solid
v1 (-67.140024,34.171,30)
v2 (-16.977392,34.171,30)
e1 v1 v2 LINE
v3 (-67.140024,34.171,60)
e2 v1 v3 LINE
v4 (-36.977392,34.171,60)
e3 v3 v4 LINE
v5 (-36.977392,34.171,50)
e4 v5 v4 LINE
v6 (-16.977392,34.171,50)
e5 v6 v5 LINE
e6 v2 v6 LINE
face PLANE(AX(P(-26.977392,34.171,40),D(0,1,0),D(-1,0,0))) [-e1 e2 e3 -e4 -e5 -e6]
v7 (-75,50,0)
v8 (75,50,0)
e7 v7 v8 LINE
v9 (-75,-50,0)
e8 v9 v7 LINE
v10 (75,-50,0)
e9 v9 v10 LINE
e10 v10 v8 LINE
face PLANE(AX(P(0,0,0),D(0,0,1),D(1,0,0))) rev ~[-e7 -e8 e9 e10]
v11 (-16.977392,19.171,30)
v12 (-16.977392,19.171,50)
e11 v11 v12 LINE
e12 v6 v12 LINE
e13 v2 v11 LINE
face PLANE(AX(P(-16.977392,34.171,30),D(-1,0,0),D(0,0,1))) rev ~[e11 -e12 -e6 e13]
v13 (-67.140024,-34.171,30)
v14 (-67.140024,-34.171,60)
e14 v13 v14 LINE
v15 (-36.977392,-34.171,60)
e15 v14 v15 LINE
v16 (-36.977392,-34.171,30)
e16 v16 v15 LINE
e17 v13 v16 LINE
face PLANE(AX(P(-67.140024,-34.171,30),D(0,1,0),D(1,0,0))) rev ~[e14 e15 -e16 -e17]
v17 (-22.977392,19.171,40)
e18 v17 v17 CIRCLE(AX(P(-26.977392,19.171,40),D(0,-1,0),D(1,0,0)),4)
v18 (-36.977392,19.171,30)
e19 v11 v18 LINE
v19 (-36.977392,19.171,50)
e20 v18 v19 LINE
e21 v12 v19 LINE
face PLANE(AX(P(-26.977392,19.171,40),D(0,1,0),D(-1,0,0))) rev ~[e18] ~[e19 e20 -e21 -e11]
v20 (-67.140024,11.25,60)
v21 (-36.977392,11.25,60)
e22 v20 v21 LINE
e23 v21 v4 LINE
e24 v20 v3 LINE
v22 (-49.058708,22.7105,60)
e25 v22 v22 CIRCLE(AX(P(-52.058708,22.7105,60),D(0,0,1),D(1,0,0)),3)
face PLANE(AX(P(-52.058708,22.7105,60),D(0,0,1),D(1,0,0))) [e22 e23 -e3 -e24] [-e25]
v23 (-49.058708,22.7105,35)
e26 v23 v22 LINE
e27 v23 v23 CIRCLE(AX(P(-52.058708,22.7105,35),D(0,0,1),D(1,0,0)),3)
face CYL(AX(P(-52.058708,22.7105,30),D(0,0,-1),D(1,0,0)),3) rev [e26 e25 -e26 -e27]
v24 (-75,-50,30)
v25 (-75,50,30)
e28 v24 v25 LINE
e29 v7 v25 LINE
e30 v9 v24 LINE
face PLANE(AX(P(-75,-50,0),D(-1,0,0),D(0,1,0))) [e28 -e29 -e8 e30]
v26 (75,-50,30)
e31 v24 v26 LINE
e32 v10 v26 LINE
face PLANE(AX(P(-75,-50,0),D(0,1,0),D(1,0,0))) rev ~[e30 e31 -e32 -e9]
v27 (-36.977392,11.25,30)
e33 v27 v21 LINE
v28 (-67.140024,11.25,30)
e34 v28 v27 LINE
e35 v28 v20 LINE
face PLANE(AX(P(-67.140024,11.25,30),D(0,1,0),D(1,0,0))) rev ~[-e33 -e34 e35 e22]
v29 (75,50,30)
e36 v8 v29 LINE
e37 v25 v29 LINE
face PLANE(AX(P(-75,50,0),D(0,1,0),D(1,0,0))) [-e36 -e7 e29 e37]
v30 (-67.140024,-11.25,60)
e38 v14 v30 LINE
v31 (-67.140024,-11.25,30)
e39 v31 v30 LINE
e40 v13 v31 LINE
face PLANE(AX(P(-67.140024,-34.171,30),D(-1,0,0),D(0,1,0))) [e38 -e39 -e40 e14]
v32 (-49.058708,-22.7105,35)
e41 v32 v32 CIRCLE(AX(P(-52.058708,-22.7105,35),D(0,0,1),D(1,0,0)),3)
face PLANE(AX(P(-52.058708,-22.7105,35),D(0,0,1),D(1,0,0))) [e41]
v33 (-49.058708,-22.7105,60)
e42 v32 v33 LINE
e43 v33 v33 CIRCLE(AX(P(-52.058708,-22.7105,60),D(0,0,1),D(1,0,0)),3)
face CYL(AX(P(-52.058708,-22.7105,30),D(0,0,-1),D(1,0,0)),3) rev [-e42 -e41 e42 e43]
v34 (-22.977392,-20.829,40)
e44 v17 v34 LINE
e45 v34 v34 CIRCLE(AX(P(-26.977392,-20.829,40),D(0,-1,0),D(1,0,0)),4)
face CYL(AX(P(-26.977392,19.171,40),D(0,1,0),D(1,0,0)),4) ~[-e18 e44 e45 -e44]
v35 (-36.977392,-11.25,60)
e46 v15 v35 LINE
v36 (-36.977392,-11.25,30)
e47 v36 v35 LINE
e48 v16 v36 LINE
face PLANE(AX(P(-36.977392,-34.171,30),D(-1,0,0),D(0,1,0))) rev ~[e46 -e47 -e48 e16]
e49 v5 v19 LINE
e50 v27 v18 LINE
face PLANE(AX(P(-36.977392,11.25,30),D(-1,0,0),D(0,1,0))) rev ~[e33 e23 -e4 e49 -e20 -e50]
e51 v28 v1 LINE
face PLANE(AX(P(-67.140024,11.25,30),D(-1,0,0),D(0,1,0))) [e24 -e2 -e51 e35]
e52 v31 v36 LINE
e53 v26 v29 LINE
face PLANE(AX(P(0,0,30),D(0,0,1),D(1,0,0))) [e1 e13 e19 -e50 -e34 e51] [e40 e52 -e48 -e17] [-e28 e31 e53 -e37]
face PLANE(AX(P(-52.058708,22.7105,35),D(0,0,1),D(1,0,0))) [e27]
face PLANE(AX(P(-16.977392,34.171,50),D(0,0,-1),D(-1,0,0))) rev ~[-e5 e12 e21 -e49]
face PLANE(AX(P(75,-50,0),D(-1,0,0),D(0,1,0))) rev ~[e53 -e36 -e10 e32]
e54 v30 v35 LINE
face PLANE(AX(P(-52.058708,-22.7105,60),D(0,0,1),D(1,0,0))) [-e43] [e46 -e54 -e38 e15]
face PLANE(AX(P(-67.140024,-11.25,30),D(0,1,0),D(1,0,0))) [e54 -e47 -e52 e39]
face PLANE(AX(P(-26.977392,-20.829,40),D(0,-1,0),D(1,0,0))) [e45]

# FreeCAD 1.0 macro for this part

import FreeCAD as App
import Part
import Sketcher

V = App.Vector

doc = App.newDocument("Part")
body = doc.addObject("PartDesign::Body", "Body")

sketch1 = body.newObject("Sketcher::SketchObject", "Sketch")
sketch1.AttachmentSupport = (doc.getObject("XY_Plane"), [""])
sketch1.MapMode = "FlatFace"
sketch1.addGeometry([
    Part.LineSegment(V(-75, 50, 0), V(-75, -50, 0)),
    Part.LineSegment(V(-75, -50, 0), V(75, -50, 0)),
    Part.LineSegment(V(75, -50, 0), V(75, 50, 0)),
    Part.LineSegment(V(75, 50, 0), V(-75, 50, 0)),
], False)
sketch1.addConstraint([
    Sketcher.Constraint("Coincident", 0, 2, 1, 1),
    Sketcher.Constraint("Coincident", 1, 2, 2, 1),
    Sketcher.Constraint("Coincident", 2, 2, 3, 1),
    Sketcher.Constraint("Coincident", 3, 2, 0, 1),
    Sketcher.Constraint("Vertical", 0),
    Sketcher.Constraint("Horizontal", 1),
    Sketcher.Constraint("Vertical", 2),
    Sketcher.Constraint("Horizontal", 3),
    Sketcher.Constraint("Symmetric", 0, 2, 2, 2, -1, 1),
    Sketcher.Constraint("DistanceX", 1, 1, 1, 2, 150.0),
    Sketcher.Constraint("DistanceY", 0, 2, 0, 1, 100.0),
])
pad1 = body.newObject("PartDesign::Pad", "Pad")
pad1.Profile = sketch1
pad1.Length = 30

sketch2 = body.newObject("Sketcher::SketchObject", "Sketch001")
sketch2.AttachmentSupport = (doc.getObject("XY_Plane"), [""])
sketch2.MapMode = "FlatFace"
sketch2.AttachmentOffset = App.Placement(V(0, 0, 30), App.Rotation())
sketch2.addGeometry([
    Part.Circle(V(-52.1, -22.7, 0), V(0, 0, 1), 3),
    Part.Circle(V(-52.1, 22.7, 0), V(0, 0, 1), 3),
], False)
sketch2.addConstraint([
    Sketcher.Constraint("Equal", 0, 1),
    Sketcher.Constraint("Symmetric", 0, 3, 1, 3, -1),
    Sketcher.Constraint("Diameter", 0, 6.0),
    Sketcher.Constraint("DistanceY", 0, 3, 1, 3, 45.421),
    Sketcher.Constraint("DistanceX", 0, 3, -1, 1, 52.058708),
])
pad2 = body.newObject("PartDesign::Pad", "Pad001")
pad2.Profile = sketch2
pad2.Length = 5

sketch3 = body.newObject("Sketcher::SketchObject", "Sketch002")
sketch3.AttachmentSupport = (doc.getObject("XY_Plane"), [""])
sketch3.MapMode = "FlatFace"
sketch3.AttachmentOffset = App.Placement(V(0, 0, 30), App.Rotation())
sketch3.addGeometry([
    Part.LineSegment(V(-67.1, 34.2, 0), V(-67.1, 11.2, 0)),
    Part.LineSegment(V(-67.1, 11.2, 0), V(-37, 11.2, 0)),
    Part.LineSegment(V(-37, 11.2, 0), V(-37, 34.2, 0)),
    Part.LineSegment(V(-37, 34.2, 0), V(-67.1, 34.2, 0)),
    Part.Circle(V(-52.1, 22.7, 0), V(0, 0, 1), 3),
    Part.LineSegment(V(-67.1, -11.2, 0), V(-67.1, -34.2, 0)),
    Part.LineSegment(V(-67.1, -34.2, 0), V(-37, -34.2, 0)),
    Part.LineSegment(V(-37, -34.2, 0), V(-37, -11.2, 0)),
    Part.LineSegment(V(-37, -11.2, 0), V(-67.1, -11.2, 0)),
    Part.Circle(V(-52.1, -22.7, 0), V(0, 0, 1), 3),
], False)
sketch3.addConstraint([
    Sketcher.Constraint("Coincident", 0, 2, 1, 1),
    Sketcher.Constraint("Coincident", 1, 2, 2, 1),
    Sketcher.Constraint("Coincident", 2, 2, 3, 1),
    Sketcher.Constraint("Coincident", 3, 2, 0, 1),
    Sketcher.Constraint("Coincident", 5, 2, 6, 1),
    Sketcher.Constraint("Coincident", 6, 2, 7, 1),
    Sketcher.Constraint("Coincident", 7, 2, 8, 1),
    Sketcher.Constraint("Coincident", 8, 2, 5, 1),
    Sketcher.Constraint("Vertical", 0),
    Sketcher.Constraint("Horizontal", 1),
    Sketcher.Constraint("Vertical", 2),
    Sketcher.Constraint("Horizontal", 3),
    Sketcher.Constraint("Vertical", 5),
    Sketcher.Constraint("Horizontal", 6),
    Sketcher.Constraint("Vertical", 7),
    Sketcher.Constraint("Horizontal", 8),
    Sketcher.Constraint("Equal", 4, 9),
    Sketcher.Constraint("Symmetric", 4, 3, 9, 3, -1),
    Sketcher.Constraint("Symmetric", 3, 2, 5, 2, -1),
    Sketcher.Constraint("Symmetric", 1, 2, 7, 2, -1),
    Sketcher.Constraint("Diameter", 4, 6.0),
    Sketcher.Constraint("DistanceY", 7, 2, 1, 2, 22.5),
    Sketcher.Constraint("DistanceY", 0, 2, 0, 1, 22.921),
    Sketcher.Constraint("DistanceY", 9, 3, 4, 3, 45.421),
    Sketcher.Constraint("DistanceX", 1, 1, 1, 2, 30.162632),
    Sketcher.Constraint("DistanceX", 4, 3, -1, 1, 52.058708),
    Sketcher.Constraint("DistanceX", 0, 2, -1, 1, 67.140024),
])
pad3 = body.newObject("PartDesign::Pad", "Pad002")
pad3.Profile = sketch3
pad3.Length = 30

sketch4 = body.newObject("Sketcher::SketchObject", "Sketch003")
sketch4.AttachmentSupport = (doc.getObject("XZ_Plane"), [""])
sketch4.MapMode = "FlatFace"
sketch4.AttachmentOffset = App.Placement(V(0, 0, -34.171), App.Rotation())
sketch4.addGeometry([
    Part.LineSegment(V(-17, 50, 0), V(-17, 30, 0)),
    Part.LineSegment(V(-17, 30, 0), V(-37, 30, 0)),
    Part.LineSegment(V(-37, 30, 0), V(-37, 50, 0)),
    Part.LineSegment(V(-37, 50, 0), V(-17, 50, 0)),
], False)
sketch4.addConstraint([
    Sketcher.Constraint("Coincident", 0, 2, 1, 1),
    Sketcher.Constraint("Coincident", 1, 2, 2, 1),
    Sketcher.Constraint("Coincident", 2, 2, 3, 1),
    Sketcher.Constraint("Coincident", 3, 2, 0, 1),
    Sketcher.Constraint("Vertical", 0),
    Sketcher.Constraint("Horizontal", 1),
    Sketcher.Constraint("Vertical", 2),
    Sketcher.Constraint("Horizontal", 3),
    Sketcher.Constraint("Equal", 3, 0),
    Sketcher.Constraint("DistanceX", 1, 2, 1, 1, 20.0),
    Sketcher.Constraint("DistanceY", -1, 1, 0, 2, 30.0),
    Sketcher.Constraint("DistanceX", 0, 2, -1, 1, 16.977392),
])
pad4 = body.newObject("PartDesign::Pad", "Pad003")
pad4.Profile = sketch4
pad4.Length = 15

sketch5 = body.newObject("Sketcher::SketchObject", "Sketch004")
sketch5.AttachmentSupport = (doc.getObject("XZ_Plane"), [""])
sketch5.MapMode = "FlatFace"
sketch5.AttachmentOffset = App.Placement(V(0, 0, -19.171), App.Rotation())
sketch5.addGeometry(Part.Circle(V(-27, 40, 0), V(0, 0, 1), 4), False)
sketch5.addConstraint([
    Sketcher.Constraint("Diameter", 0, 8.0),
    Sketcher.Constraint("DistanceY", -1, 1, 0, 3, 40.0),
    Sketcher.Constraint("DistanceX", 0, 3, -1, 1, 26.977392),
])
pad5 = body.newObject("PartDesign::Pad", "Pad004")
pad5.Profile = sketch5
pad5.Length = 40

doc.recompute()
